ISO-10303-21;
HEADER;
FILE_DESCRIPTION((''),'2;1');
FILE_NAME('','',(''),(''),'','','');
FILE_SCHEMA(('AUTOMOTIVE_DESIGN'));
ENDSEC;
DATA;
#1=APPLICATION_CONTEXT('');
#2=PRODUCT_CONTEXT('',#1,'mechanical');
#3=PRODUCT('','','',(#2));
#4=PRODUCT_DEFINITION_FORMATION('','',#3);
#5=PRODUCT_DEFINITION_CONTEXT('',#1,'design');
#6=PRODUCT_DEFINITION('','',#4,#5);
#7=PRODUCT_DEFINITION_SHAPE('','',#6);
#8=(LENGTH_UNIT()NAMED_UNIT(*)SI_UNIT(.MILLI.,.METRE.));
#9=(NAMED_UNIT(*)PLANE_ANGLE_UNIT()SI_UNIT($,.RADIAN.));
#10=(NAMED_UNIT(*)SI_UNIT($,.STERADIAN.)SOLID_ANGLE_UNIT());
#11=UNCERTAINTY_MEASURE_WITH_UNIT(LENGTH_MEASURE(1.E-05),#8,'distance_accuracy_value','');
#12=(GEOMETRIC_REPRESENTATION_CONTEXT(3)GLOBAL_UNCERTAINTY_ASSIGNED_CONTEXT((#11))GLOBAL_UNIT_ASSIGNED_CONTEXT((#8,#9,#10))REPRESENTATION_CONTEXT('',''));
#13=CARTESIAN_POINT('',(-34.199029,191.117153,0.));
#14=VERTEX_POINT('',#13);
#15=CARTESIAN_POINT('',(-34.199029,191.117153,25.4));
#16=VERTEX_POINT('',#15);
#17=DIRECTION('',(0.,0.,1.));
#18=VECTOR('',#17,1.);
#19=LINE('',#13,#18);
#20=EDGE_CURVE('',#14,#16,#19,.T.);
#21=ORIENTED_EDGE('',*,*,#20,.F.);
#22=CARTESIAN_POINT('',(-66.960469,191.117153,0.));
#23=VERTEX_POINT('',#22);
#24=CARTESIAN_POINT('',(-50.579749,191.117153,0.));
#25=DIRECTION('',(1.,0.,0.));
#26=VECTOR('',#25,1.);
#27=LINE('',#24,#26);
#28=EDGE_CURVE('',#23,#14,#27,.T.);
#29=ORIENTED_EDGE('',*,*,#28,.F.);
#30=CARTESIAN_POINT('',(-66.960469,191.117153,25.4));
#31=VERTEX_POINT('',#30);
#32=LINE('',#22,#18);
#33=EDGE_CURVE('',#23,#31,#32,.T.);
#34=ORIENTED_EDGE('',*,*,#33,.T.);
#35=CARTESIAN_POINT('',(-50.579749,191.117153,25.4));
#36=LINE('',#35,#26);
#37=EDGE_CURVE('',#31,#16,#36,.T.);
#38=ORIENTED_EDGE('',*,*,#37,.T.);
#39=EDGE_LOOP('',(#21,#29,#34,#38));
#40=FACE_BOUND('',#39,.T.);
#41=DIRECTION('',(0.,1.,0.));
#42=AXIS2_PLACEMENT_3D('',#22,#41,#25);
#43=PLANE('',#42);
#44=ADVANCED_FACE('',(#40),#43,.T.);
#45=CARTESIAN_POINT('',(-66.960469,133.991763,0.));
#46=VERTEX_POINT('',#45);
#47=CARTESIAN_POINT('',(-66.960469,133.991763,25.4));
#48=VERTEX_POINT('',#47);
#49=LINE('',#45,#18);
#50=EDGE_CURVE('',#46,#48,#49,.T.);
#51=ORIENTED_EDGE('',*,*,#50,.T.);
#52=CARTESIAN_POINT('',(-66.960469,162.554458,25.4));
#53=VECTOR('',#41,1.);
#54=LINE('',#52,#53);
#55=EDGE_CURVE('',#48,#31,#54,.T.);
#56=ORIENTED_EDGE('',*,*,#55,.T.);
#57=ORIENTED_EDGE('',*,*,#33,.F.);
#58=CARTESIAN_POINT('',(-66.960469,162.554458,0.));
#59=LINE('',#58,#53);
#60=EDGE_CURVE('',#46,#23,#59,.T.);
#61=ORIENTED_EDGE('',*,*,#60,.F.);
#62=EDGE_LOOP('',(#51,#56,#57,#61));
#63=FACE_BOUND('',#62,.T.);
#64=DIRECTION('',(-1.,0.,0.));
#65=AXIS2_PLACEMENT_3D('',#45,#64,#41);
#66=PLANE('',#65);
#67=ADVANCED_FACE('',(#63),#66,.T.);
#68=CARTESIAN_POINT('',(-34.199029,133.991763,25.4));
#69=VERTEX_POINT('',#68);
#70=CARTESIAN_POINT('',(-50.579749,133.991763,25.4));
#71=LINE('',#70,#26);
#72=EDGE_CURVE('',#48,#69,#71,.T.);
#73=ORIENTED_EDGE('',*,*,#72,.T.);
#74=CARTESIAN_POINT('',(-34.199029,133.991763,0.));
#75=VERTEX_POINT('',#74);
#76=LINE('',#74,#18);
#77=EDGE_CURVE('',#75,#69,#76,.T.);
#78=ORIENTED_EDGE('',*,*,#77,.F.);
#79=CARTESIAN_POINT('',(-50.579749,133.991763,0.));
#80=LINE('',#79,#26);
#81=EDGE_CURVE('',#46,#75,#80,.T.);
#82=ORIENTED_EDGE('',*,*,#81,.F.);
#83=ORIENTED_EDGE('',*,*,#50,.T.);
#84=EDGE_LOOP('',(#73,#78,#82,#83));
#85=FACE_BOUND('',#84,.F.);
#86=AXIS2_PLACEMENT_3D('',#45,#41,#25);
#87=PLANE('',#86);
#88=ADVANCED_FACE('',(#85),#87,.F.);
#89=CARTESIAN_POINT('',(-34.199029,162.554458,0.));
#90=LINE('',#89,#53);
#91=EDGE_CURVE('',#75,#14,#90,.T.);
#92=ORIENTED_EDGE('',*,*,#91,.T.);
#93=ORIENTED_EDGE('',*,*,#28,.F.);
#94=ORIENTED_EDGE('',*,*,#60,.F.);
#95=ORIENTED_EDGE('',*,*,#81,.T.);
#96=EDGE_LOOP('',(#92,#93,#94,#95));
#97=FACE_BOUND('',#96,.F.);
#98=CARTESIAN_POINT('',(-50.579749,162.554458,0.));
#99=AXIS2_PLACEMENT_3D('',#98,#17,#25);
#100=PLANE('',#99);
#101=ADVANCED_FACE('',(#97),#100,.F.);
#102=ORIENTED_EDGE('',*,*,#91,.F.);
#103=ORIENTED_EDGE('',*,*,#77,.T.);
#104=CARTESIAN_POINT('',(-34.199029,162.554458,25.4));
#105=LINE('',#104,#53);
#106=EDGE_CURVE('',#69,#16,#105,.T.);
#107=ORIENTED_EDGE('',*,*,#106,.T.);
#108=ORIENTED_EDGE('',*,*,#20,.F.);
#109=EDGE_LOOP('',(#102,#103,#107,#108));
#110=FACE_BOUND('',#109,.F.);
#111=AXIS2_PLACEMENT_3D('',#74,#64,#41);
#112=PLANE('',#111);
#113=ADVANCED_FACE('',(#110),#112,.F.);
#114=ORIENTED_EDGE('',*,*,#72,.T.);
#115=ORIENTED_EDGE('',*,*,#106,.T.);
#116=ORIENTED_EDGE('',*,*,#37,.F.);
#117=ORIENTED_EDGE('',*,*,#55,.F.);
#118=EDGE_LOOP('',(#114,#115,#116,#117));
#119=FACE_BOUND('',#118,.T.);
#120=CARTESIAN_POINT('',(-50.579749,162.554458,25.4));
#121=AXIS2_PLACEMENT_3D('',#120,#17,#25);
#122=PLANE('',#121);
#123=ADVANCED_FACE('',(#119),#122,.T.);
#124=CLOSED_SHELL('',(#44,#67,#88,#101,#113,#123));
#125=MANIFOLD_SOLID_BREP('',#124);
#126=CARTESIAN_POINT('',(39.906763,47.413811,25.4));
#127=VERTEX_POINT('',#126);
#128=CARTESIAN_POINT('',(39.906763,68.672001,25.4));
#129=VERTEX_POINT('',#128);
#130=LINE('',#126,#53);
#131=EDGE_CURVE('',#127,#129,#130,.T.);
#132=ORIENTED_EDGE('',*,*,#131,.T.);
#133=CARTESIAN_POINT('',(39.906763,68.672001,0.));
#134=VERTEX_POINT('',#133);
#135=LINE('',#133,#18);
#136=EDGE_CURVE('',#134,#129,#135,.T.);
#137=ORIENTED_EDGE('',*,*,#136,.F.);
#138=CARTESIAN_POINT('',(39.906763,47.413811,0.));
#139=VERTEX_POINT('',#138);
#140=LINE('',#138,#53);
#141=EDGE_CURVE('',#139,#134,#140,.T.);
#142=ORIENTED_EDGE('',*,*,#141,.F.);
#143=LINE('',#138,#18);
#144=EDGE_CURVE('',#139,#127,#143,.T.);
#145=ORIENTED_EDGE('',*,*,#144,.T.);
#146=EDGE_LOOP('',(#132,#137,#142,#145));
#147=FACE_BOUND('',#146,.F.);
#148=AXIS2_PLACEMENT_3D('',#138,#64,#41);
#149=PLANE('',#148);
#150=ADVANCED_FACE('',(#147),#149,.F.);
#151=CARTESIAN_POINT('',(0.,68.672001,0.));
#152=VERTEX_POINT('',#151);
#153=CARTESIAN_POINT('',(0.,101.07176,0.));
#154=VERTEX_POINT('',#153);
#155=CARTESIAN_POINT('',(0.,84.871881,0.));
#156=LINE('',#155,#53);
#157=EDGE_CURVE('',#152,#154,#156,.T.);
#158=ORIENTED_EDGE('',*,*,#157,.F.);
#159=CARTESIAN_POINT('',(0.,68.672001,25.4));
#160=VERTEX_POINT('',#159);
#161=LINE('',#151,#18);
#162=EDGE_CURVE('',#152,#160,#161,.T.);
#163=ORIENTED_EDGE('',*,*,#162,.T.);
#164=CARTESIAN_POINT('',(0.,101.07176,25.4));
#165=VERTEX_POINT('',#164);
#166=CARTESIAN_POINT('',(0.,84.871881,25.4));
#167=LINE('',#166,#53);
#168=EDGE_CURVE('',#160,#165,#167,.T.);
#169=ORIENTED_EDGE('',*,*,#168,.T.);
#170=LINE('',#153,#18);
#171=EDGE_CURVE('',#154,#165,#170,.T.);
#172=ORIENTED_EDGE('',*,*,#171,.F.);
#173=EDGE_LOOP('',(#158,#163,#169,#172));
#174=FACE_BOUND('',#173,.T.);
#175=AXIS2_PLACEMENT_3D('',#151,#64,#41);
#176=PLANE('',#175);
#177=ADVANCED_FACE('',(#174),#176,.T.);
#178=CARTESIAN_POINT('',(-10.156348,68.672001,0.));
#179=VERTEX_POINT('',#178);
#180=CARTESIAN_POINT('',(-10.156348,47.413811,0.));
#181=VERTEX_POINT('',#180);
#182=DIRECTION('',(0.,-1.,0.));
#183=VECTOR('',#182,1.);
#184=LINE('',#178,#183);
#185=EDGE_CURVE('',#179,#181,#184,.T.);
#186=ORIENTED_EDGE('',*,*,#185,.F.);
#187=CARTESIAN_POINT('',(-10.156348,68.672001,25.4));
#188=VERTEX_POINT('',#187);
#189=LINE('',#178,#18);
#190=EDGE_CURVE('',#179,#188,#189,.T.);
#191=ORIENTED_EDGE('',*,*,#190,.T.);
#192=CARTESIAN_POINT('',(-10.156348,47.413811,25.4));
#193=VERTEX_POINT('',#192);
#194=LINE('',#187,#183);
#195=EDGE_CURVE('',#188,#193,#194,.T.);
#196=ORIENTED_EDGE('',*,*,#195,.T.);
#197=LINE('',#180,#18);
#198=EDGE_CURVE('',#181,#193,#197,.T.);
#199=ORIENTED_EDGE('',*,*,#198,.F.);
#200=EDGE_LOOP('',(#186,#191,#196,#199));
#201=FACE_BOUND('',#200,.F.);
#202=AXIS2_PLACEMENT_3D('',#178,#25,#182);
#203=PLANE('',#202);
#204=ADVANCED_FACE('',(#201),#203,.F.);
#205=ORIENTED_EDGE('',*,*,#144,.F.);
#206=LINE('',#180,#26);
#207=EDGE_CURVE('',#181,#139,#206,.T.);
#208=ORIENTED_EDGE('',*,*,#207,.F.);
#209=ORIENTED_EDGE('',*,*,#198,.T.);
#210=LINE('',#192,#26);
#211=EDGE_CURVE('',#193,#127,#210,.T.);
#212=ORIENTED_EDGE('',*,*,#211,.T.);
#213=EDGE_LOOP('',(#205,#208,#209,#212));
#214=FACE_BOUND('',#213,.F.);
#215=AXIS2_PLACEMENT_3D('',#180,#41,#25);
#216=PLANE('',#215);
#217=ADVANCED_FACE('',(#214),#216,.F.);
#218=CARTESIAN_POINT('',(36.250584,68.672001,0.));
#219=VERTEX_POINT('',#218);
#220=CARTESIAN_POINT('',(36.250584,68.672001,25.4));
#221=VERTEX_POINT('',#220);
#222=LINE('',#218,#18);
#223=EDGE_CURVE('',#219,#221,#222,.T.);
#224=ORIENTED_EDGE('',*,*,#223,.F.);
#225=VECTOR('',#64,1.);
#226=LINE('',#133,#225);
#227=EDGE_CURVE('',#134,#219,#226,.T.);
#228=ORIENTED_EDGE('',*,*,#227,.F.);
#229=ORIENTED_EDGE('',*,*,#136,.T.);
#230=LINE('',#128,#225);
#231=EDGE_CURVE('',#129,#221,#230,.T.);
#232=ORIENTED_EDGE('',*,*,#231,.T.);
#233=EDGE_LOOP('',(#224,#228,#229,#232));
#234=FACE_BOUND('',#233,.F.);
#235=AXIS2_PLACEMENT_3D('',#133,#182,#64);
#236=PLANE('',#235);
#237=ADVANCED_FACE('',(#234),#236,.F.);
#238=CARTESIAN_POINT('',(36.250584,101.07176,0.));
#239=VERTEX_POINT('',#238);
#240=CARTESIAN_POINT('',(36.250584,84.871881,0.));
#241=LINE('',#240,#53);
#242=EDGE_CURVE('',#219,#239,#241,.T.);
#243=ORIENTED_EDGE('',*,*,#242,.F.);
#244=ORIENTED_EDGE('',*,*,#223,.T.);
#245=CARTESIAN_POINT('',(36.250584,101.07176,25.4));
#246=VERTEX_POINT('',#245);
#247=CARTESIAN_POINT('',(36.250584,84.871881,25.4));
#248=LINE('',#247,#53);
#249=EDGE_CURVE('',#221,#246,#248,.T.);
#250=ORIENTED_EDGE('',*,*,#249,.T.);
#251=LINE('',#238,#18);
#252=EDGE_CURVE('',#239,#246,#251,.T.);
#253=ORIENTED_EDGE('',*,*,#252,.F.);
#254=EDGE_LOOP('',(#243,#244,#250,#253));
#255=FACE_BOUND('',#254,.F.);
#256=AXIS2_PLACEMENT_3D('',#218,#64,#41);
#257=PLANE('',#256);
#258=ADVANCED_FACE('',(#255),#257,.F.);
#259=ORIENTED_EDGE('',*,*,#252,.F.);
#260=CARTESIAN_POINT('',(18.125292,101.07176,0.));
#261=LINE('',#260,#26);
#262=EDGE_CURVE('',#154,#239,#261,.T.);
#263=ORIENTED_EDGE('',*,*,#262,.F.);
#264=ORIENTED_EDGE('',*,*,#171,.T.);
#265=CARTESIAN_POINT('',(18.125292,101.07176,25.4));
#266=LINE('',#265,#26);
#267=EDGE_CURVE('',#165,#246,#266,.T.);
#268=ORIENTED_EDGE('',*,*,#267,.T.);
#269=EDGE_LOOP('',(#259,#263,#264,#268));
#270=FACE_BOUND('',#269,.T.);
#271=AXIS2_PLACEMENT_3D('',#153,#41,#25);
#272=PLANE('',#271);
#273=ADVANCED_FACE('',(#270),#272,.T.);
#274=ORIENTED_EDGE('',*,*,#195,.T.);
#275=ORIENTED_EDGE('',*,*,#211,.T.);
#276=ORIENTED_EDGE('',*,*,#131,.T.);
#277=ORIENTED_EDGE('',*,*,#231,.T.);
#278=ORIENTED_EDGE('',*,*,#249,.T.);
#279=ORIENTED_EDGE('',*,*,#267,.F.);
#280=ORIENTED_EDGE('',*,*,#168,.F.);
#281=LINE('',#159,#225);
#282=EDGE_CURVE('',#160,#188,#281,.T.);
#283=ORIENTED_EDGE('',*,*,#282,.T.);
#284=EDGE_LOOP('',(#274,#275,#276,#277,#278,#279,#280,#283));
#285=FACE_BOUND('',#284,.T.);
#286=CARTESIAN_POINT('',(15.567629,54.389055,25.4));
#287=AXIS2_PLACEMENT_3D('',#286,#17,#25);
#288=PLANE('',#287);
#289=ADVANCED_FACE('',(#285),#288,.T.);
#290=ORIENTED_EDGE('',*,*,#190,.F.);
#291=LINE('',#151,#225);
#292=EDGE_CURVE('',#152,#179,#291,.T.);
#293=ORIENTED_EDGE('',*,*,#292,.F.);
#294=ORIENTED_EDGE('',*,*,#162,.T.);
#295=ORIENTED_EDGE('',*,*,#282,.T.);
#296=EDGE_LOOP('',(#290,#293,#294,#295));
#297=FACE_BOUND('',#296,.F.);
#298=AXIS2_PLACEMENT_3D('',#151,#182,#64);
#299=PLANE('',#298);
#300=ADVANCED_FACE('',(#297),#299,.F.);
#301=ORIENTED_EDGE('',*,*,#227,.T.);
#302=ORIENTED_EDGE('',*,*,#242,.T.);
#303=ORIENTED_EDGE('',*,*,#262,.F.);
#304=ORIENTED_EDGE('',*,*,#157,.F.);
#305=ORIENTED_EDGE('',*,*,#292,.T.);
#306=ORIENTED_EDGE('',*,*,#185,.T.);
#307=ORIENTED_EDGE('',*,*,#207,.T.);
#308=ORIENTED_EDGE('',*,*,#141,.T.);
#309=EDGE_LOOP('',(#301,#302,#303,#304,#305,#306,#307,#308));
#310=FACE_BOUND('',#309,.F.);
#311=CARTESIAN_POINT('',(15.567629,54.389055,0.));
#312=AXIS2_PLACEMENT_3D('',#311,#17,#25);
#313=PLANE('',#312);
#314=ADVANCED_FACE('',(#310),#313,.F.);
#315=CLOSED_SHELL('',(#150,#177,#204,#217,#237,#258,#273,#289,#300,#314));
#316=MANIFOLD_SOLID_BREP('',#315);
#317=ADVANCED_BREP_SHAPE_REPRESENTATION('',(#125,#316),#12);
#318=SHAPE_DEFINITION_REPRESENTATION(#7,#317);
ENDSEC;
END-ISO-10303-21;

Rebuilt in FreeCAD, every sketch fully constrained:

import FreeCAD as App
import Part
import Sketcher
from FreeCAD import Vector
Q = App.Units.Quantity


def add_polygon(sketch, points):
    """Adds a closed chain of lines whose ends are joined by coincident constraints."""
    first, n = sketch.GeometryCount, len(points)
    for a, b in zip(points, points[1:] + points[:1]):
        sketch.addGeometry(Part.LineSegment(App.Vector(*a, 0), App.Vector(*b, 0)), False)
    for i in range(n):
        sketch.addConstraint(Sketcher.Constraint("Coincident", first + i, 2, first + (i + 1) % n, 1))

doc = App.newDocument("Part")
body = doc.addObject("PartDesign::Body", "Body")

# Sketch on XY plane
sketch1 = body.newObject("Sketcher::SketchObject", "Sketch")
sketch1.AttachmentSupport = (doc.getObject("XY_Plane"), [""])
sketch1.MapMode = "FlatFace"
add_polygon(sketch1, [(-67, 191), (-67, 134), (-34, 134), (-34, 191)])  # lines 0-3
sketch1.addConstraint([
    Sketcher.Constraint("Vertical", 0),
    Sketcher.Constraint("Horizontal", 1),
    Sketcher.Constraint("Vertical", 2),
    Sketcher.Constraint("Horizontal", 3),
    Sketcher.Constraint("DistanceX", 1, 1, 1, 2, 32.76144),
    Sketcher.Constraint("DistanceY", 0, 2, 0, 1, 57.12539),
    Sketcher.Constraint("DistanceX", 0, 2, -1, 1, 66.960469),
    Sketcher.Constraint("DistanceY", -1, 1, 0, 2, 133.991763),
])
pad1 = body.newObject("PartDesign::Pad", "Pad")
pad1.Profile = sketch1
pad1.Length = Q("1 in")
body2 = doc.addObject("PartDesign::Body", "Body001")

# Sketch on XY plane
sketch2 = body2.newObject("Sketcher::SketchObject", "Sketch001")
sketch2.AttachmentSupport = (doc.getObject("XY_Plane001"), [""])
sketch2.MapMode = "FlatFace"
add_polygon(sketch2, [(0, 68.7), (-10.2, 68.7), (-10.2, 47.4), (39.9, 47.4), (39.9, 68.7), (36.3, 68.7), (36.3, 101.1), (0, 101.1)])  # lines 0-7
sketch2.addConstraint([
    Sketcher.Constraint("Horizontal", 0),
    Sketcher.Constraint("Vertical", 1),
    Sketcher.Constraint("Horizontal", 2),
    Sketcher.Constraint("Vertical", 3),
    Sketcher.Constraint("Horizontal", 4),
    Sketcher.Constraint("Vertical", 5),
    Sketcher.Constraint("Horizontal", 6),
    Sketcher.Constraint("Vertical", 7),
    Sketcher.Constraint("PointOnObject", 6, 2, -2),
    Sketcher.Constraint("Horizontal", 0, 2, 3, 2),
    Sketcher.Constraint("DistanceX", 0, 2, 0, 1, 10.156348),
    Sketcher.Constraint("DistanceX", 2, 1, 2, 2, 50.063111),
    Sketcher.Constraint("DistanceX", 4, 2, 4, 1, 3.656179),
    Sketcher.Constraint("DistanceY", 1, 2, 1, 1, 21.25819),
    Sketcher.Constraint("DistanceY", 5, 1, 5, 2, 32.399759),
    Sketcher.Constraint("DistanceY", -1, 1, 0, 2, 68.672001),
])
pad2 = body2.newObject("PartDesign::Pad", "Pad001")
pad2.Profile = sketch2
pad2.Length = Q("1 in")

doc.recompute()
